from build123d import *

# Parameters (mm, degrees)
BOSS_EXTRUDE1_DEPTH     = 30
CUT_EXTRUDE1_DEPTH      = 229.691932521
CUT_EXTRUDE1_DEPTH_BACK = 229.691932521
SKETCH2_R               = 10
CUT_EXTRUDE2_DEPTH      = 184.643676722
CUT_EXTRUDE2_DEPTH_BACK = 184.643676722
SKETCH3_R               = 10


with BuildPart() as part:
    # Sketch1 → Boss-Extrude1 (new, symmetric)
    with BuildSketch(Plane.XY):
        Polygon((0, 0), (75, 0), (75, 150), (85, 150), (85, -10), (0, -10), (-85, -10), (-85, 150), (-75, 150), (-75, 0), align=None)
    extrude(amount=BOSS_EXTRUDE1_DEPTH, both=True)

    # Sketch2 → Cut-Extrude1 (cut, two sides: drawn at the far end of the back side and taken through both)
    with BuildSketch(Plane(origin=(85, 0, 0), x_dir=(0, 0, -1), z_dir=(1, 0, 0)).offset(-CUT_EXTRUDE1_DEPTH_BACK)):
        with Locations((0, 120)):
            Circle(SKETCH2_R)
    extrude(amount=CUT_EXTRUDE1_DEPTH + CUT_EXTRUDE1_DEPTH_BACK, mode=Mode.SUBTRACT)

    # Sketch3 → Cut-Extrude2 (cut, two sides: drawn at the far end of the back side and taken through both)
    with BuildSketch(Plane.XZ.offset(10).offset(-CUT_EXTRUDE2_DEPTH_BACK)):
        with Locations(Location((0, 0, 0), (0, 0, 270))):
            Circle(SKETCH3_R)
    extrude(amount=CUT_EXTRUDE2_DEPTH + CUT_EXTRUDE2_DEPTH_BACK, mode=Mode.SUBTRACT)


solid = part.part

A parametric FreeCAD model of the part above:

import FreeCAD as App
import Part
import Sketcher

V = App.Vector

doc = App.newDocument("Part")
params = doc.addObject("Spreadsheet::Sheet", "Params")
for row, (alias, value) in enumerate([
    ("sketch1_width", "150 mm"),
    ("sketch1_width2", "10 mm"),
    ("sketch1_height", "160 mm"),
    ("pad1_length", "60 mm"),
    ("sketch2_diameter", "20 mm"),
    ("sketch3_diameter", "20 mm"),
], start=1):
    params.set(f"A{row}", alias)
    params.set(f"B{row}", "=" + value)
    params.setAlias(f"B{row}", alias)

body = doc.addObject("PartDesign::Body", "Body")

# Sketch on XY plane
sketch1 = body.newObject("Sketcher::SketchObject", "Sketch")
sketch1.AttachmentSupport = (doc.getObject("XY_Plane"), [""])
sketch1.MapMode = "FlatFace"
sketch1.addGeometry(Part.LineSegment(V(75, 0, 0), V(-75, 0, 0)), False)
sketch1.addGeometry(Part.LineSegment(V(-75, 0, 0), V(-75, 150, 0)), False)
sketch1.addGeometry(Part.LineSegment(V(-75, 150, 0), V(-85, 150, 0)), False)
sketch1.addGeometry(Part.LineSegment(V(-85, 150, 0), V(-85, -10, 0)), False)
sketch1.addGeometry(Part.LineSegment(V(-85, -10, 0), V(85, -10, 0)), False)
sketch1.addGeometry(Part.LineSegment(V(85, -10, 0), V(85, 150, 0)), False)
sketch1.addGeometry(Part.LineSegment(V(85, 150, 0), V(75, 150, 0)), False)
sketch1.addGeometry(Part.LineSegment(V(75, 150, 0), V(75, 0, 0)), False)
sketch1.addConstraint(Sketcher.Constraint("Coincident", 0, 2, 1, 1))
sketch1.addConstraint(Sketcher.Constraint("Coincident", 1, 2, 2, 1))
sketch1.addConstraint(Sketcher.Constraint("Coincident", 2, 2, 3, 1))
sketch1.addConstraint(Sketcher.Constraint("Coincident", 3, 2, 4, 1))
sketch1.addConstraint(Sketcher.Constraint("Coincident", 4, 2, 5, 1))
sketch1.addConstraint(Sketcher.Constraint("Coincident", 5, 2, 6, 1))
sketch1.addConstraint(Sketcher.Constraint("Coincident", 6, 2, 7, 1))
sketch1.addConstraint(Sketcher.Constraint("Coincident", 7, 2, 0, 1))
sketch1.addConstraint(Sketcher.Constraint("Horizontal", 0))
sketch1.addConstraint(Sketcher.Constraint("Vertical", 1))
sketch1.addConstraint(Sketcher.Constraint("Horizontal", 2))
sketch1.addConstraint(Sketcher.Constraint("Vertical", 3))
sketch1.addConstraint(Sketcher.Constraint("Horizontal", 4))
sketch1.addConstraint(Sketcher.Constraint("Vertical", 5))
sketch1.addConstraint(Sketcher.Constraint("Horizontal", 6))
sketch1.addConstraint(Sketcher.Constraint("Vertical", 7))
sketch1.addConstraint(Sketcher.Constraint("Symmetric", 0, 2, 7, 2, -1, 1))
sketch1.addConstraint(Sketcher.Constraint("Symmetric", 2, 2, 5, 2, -2))
sketch1.addConstraint(Sketcher.Constraint("Equal", 0, 1))
sketch1.addConstraint(Sketcher.Constraint("DistanceX", 0, 2, 0, 1, 150.0))
sketch1.addConstraint(Sketcher.Constraint("DistanceX", 2, 2, 2, 1, 10.0))
sketch1.addConstraint(Sketcher.Constraint("DistanceY", 3, 2, 3, 1, 160.0))
sketch1.setExpression("Constraints[19]", "Params.sketch1_width")
sketch1.setExpression("Constraints[20]", "Params.sketch1_width2")
sketch1.setExpression("Constraints[21]", "Params.sketch1_height")
pad1 = body.newObject("PartDesign::Pad", "Pad")
pad1.Profile = sketch1
pad1.setExpression("Length", "Params.pad1_length")
pad1.Midplane = True

# Sketch on YZ plane
sketch2 = body.newObject("Sketcher::SketchObject", "Sketch001")
sketch2.AttachmentSupport = (doc.getObject("YZ_Plane"), [""])
sketch2.MapMode = "FlatFace"
sketch2.AttachmentOffset = App.Placement(V(0, 0, 85), App.Rotation())
sketch2.addGeometry(Part.Circle(V(120, 0, 0), V(0, 0, 1), 10), False)
sketch2.addConstraint(Sketcher.Constraint("PointOnObject", 0, 3, -1))
sketch2.addConstraint(Sketcher.Constraint("Diameter", 0, 20.0))
sketch2.addConstraint(Sketcher.Constraint("DistanceX", -1, 1, 0, 3, 120.0))
sketch2.setExpression("Constraints[1]", "Params.sketch2_diameter")
pocket1 = body.newObject("PartDesign::Pocket", "Pocket")
pocket1.Profile = sketch2
pocket1.Type = "ThroughAll"
pocket1.Midplane = True

# Sketch on XZ plane
sketch3 = body.newObject("Sketcher::SketchObject", "Sketch002")
sketch3.AttachmentSupport = (doc.getObject("XZ_Plane"), [""])
sketch3.MapMode = "FlatFace"
sketch3.AttachmentOffset = App.Placement(V(0, 0, 10), App.Rotation())
sketch3.addGeometry(Part.Circle(V(0, 0, 0), V(0, 0, 1), 10), False)
sketch3.addConstraint(Sketcher.Constraint("Coincident", 0, 3, -1, 1))
sketch3.addConstraint(Sketcher.Constraint("Diameter", 0, 20.0))
sketch3.setExpression("Constraints[1]", "Params.sketch3_diameter")
pocket2 = body.newObject("PartDesign::Pocket", "Pocket001")
pocket2.Profile = sketch3
pocket2.Type = "ThroughAll"
pocket2.Midplane = True

doc.recompute()
